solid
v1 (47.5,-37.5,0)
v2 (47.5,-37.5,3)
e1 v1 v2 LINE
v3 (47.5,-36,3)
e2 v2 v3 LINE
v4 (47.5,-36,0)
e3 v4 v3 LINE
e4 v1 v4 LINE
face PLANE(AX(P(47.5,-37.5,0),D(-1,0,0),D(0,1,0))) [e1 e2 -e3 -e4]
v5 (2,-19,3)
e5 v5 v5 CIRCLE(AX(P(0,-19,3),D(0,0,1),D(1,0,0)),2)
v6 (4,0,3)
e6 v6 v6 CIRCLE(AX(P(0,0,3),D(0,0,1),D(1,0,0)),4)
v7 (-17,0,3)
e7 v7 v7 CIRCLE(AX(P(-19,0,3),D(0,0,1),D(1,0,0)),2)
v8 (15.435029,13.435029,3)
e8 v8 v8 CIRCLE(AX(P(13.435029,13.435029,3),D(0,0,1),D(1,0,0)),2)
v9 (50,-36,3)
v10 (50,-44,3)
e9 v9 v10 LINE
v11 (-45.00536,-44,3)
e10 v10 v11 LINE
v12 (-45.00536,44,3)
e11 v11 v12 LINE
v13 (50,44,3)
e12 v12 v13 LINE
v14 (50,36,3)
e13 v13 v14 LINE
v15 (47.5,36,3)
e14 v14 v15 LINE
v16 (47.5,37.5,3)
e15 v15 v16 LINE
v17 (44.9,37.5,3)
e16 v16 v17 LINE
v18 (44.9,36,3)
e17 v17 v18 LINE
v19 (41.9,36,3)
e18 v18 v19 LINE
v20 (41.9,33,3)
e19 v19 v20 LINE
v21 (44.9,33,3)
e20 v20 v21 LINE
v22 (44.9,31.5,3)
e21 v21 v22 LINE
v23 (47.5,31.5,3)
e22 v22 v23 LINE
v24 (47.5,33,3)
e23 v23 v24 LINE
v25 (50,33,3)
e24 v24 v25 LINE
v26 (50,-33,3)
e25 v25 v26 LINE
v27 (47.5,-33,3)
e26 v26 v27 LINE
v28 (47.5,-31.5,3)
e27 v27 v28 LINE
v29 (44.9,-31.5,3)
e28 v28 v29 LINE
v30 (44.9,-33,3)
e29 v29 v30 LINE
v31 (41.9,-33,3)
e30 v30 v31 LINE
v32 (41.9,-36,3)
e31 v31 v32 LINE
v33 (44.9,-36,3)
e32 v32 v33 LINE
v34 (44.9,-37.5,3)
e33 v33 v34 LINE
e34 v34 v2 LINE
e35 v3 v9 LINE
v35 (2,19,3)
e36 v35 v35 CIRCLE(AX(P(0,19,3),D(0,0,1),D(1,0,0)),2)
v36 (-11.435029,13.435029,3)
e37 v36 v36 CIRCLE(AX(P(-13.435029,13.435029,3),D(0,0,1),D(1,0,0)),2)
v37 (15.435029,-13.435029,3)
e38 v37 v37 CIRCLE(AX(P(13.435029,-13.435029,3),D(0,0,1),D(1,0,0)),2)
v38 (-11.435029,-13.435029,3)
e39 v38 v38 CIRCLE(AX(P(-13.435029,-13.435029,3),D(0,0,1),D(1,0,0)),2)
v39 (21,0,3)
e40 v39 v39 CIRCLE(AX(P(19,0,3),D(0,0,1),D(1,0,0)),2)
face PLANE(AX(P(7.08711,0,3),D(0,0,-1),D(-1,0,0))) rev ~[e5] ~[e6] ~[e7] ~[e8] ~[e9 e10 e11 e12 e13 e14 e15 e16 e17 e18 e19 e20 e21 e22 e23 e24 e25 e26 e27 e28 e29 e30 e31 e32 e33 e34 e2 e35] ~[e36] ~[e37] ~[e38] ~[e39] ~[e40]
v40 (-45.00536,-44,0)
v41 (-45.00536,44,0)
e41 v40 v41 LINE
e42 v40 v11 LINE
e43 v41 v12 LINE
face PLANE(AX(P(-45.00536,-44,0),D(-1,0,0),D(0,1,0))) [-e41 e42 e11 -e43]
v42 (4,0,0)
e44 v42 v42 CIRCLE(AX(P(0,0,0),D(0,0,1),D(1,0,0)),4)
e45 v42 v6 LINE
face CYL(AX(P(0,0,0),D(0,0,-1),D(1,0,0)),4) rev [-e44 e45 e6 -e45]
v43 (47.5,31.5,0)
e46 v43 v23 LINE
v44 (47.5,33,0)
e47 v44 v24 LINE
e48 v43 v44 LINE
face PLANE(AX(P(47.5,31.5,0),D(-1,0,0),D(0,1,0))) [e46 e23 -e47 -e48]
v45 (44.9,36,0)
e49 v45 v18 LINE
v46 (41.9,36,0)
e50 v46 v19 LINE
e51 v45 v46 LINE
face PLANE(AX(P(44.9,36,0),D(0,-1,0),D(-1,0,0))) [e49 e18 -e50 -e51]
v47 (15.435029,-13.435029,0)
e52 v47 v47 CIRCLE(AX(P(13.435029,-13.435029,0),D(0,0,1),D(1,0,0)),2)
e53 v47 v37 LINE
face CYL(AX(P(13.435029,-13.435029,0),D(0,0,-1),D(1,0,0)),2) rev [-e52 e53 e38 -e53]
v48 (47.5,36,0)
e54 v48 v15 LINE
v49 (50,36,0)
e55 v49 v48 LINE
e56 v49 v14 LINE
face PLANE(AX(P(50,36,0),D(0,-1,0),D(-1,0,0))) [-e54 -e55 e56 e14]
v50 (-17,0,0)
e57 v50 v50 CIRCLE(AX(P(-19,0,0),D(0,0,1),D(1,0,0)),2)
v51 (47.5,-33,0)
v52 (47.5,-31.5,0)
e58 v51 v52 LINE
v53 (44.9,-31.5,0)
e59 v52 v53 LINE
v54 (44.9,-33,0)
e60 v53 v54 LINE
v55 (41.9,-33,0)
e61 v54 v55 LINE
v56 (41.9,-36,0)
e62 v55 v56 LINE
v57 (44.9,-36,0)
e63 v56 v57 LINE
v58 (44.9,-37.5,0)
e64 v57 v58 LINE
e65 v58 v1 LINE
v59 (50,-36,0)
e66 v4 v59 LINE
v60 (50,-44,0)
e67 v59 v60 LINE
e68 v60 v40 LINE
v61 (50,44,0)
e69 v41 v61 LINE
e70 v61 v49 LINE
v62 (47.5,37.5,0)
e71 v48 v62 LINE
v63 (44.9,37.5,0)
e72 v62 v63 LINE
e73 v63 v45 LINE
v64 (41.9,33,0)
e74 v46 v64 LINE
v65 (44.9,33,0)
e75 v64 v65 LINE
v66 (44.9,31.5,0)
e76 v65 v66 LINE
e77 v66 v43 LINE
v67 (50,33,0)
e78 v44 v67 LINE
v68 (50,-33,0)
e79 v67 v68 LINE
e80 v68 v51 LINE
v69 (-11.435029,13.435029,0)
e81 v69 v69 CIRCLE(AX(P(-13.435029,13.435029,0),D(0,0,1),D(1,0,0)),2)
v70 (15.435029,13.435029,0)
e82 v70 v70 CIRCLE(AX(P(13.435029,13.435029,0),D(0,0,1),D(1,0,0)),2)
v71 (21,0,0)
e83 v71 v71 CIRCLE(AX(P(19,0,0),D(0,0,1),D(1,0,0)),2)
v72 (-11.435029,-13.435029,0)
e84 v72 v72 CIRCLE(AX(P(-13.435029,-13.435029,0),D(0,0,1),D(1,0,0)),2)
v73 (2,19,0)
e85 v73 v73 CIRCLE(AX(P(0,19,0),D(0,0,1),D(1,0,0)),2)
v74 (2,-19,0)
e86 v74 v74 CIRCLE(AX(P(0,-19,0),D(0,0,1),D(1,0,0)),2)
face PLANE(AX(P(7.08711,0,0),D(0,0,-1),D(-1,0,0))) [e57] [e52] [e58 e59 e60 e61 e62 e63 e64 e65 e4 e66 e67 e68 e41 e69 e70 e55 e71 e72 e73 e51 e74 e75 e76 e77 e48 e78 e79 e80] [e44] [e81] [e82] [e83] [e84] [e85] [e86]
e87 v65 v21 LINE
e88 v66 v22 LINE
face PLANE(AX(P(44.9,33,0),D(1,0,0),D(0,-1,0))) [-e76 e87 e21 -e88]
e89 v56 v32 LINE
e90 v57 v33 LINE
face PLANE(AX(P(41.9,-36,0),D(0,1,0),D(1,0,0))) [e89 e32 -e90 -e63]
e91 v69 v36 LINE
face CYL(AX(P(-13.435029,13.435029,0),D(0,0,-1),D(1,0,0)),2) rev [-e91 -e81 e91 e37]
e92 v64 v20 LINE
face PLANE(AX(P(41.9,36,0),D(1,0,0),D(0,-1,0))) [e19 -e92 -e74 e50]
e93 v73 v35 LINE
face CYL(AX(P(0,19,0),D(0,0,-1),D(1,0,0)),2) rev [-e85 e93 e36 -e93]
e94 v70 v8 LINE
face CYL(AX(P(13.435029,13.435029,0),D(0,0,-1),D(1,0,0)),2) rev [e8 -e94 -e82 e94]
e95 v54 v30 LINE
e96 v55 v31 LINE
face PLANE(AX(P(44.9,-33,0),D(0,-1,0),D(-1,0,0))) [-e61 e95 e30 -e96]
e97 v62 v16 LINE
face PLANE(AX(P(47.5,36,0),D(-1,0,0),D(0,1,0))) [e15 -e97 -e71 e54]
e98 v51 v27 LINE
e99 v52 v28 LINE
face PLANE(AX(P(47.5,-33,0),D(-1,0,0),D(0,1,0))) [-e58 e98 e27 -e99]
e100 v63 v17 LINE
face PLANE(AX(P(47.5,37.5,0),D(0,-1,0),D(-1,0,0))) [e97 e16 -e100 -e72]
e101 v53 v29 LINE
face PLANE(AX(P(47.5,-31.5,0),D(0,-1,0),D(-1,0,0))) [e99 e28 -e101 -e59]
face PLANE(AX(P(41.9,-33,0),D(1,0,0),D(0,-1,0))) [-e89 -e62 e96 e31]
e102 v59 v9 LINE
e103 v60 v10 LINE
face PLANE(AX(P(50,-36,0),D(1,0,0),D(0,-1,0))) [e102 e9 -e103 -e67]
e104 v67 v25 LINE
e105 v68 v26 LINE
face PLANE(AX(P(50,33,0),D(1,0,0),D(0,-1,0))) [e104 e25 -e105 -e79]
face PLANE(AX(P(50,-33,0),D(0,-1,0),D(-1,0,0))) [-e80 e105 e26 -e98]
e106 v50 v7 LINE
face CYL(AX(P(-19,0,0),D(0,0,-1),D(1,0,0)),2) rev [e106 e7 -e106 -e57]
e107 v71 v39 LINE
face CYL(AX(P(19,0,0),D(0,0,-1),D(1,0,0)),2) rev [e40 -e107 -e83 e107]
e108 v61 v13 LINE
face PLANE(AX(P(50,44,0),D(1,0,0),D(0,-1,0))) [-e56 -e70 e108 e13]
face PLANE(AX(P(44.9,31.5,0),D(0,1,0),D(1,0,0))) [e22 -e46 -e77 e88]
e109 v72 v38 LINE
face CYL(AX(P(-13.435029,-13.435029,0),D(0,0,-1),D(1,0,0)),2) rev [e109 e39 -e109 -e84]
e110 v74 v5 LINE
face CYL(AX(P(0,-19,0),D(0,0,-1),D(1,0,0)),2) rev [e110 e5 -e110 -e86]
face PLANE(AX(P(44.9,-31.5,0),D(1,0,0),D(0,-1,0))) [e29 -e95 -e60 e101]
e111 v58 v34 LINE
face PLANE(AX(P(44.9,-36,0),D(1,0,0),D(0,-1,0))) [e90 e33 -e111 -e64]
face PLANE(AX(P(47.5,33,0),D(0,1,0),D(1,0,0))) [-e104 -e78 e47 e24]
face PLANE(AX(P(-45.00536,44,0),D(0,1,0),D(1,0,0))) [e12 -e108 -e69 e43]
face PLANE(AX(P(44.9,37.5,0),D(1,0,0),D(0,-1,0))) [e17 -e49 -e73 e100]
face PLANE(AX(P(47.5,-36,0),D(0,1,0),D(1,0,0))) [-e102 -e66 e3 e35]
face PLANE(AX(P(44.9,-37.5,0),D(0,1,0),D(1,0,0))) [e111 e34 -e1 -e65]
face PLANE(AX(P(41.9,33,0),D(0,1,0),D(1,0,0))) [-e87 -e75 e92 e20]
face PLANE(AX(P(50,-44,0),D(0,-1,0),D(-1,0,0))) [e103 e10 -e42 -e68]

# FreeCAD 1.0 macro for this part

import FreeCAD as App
import Part
import Sketcher
from FreeCAD import Vector

doc = App.newDocument("Part")
body = doc.addObject("PartDesign::Body", "Body")

sketch1 = body.newObject("Sketcher::SketchObject", "Sketch")
sketch1.AttachmentSupport = (doc.getObject("XY_Plane"), [""])
sketch1.MapMode = "FlatFace"
sketch1.addGeometry(Part.LineSegment(Vector(50, 36, 0), Vector(50, 44, 0)), False)
sketch1.addGeometry(Part.LineSegment(Vector(50, 44, 0), Vector(-45, 44, 0)), False)
sketch1.addGeometry(Part.LineSegment(Vector(-45, 44, 0), Vector(-45, -44, 0)), False)
sketch1.addGeometry(Part.LineSegment(Vector(-45, -44, 0), Vector(50, -44, 0)), False)
sketch1.addGeometry(Part.LineSegment(Vector(50, -44, 0), Vector(50, -36, 0)), False)
sketch1.addGeometry(Part.LineSegment(Vector(50, -36, 0), Vector(47.5, -36, 0)), False)
sketch1.addGeometry(Part.LineSegment(Vector(47.5, -36, 0), Vector(47.5, -37.5, 0)), False)
sketch1.addGeometry(Part.LineSegment(Vector(47.5, -37.5, 0), Vector(44.9, -37.5, 0)), False)
sketch1.addGeometry(Part.LineSegment(Vector(44.9, -37.5, 0), Vector(44.9, -36, 0)), False)
sketch1.addGeometry(Part.LineSegment(Vector(44.9, -36, 0), Vector(41.9, -36, 0)), False)
sketch1.addGeometry(Part.LineSegment(Vector(41.9, -36, 0), Vector(41.9, -33, 0)), False)
sketch1.addGeometry(Part.LineSegment(Vector(41.9, -33, 0), Vector(44.9, -33, 0)), False)
sketch1.addGeometry(Part.LineSegment(Vector(44.9, -33, 0), Vector(44.9, -31.5, 0)), False)
sketch1.addGeometry(Part.LineSegment(Vector(44.9, -31.5, 0), Vector(47.5, -31.5, 0)), False)
sketch1.addGeometry(Part.LineSegment(Vector(47.5, -31.5, 0), Vector(47.5, -33, 0)), False)
sketch1.addGeometry(Part.LineSegment(Vector(47.5, -33, 0), Vector(50, -33, 0)), False)
sketch1.addGeometry(Part.LineSegment(Vector(50, -33, 0), Vector(50, 33, 0)), False)
sketch1.addGeometry(Part.LineSegment(Vector(50, 33, 0), Vector(47.5, 33, 0)), False)
sketch1.addGeometry(Part.LineSegment(Vector(47.5, 33, 0), Vector(47.5, 31.5, 0)), False)
sketch1.addGeometry(Part.LineSegment(Vector(47.5, 31.5, 0), Vector(44.9, 31.5, 0)), False)
sketch1.addGeometry(Part.LineSegment(Vector(44.9, 31.5, 0), Vector(44.9, 33, 0)), False)
sketch1.addGeometry(Part.LineSegment(Vector(44.9, 33, 0), Vector(41.9, 33, 0)), False)
sketch1.addGeometry(Part.LineSegment(Vector(41.9, 33, 0), Vector(41.9, 36, 0)), False)
sketch1.addGeometry(Part.LineSegment(Vector(41.9, 36, 0), Vector(44.9, 36, 0)), False)
sketch1.addGeometry(Part.LineSegment(Vector(44.9, 36, 0), Vector(44.9, 37.5, 0)), False)
sketch1.addGeometry(Part.LineSegment(Vector(44.9, 37.5, 0), Vector(47.5, 37.5, 0)), False)
sketch1.addGeometry(Part.LineSegment(Vector(47.5, 37.5, 0), Vector(47.5, 36, 0)), False)
sketch1.addGeometry(Part.LineSegment(Vector(47.5, 36, 0), Vector(50, 36, 0)), False)
sketch1.addGeometry(Part.Circle(Vector(13.4, -13.4, 0), Vector(0, 0, 1), 2), False)
sketch1.addGeometry(Part.Circle(Vector(0, -19, 0), Vector(0, 0, 1), 2), False)
sketch1.addGeometry(Part.Circle(Vector(-13.4, -13.4, 0), Vector(0, 0, 1), 2), False)
sketch1.addGeometry(Part.Circle(Vector(19, 0, 0), Vector(0, 0, 1), 2), False)
sketch1.addGeometry(Part.Circle(Vector(13.4, 13.4, 0), Vector(0, 0, 1), 2), False)
sketch1.addGeometry(Part.Circle(Vector(0, 0, 0), Vector(0, 0, 1), 4), False)
sketch1.addGeometry(Part.Circle(Vector(-19, 0, 0), Vector(0, 0, 1), 2), False)
sketch1.addGeometry(Part.Circle(Vector(0, 19, 0), Vector(0, 0, 1), 2), False)
sketch1.addGeometry(Part.Circle(Vector(-13.4, 13.4, 0), Vector(0, 0, 1), 2), False)
sketch1.addConstraint(Sketcher.Constraint("Coincident", 0, 2, 1, 1))
sketch1.addConstraint(Sketcher.Constraint("Coincident", 1, 2, 2, 1))
sketch1.addConstraint(Sketcher.Constraint("Coincident", 2, 2, 3, 1))
sketch1.addConstraint(Sketcher.Constraint("Coincident", 3, 2, 4, 1))
sketch1.addConstraint(Sketcher.Constraint("Coincident", 4, 2, 5, 1))
sketch1.addConstraint(Sketcher.Constraint("Coincident", 5, 2, 6, 1))
sketch1.addConstraint(Sketcher.Constraint("Coincident", 6, 2, 7, 1))
sketch1.addConstraint(Sketcher.Constraint("Coincident", 7, 2, 8, 1))
sketch1.addConstraint(Sketcher.Constraint("Coincident", 8, 2, 9, 1))
sketch1.addConstraint(Sketcher.Constraint("Coincident", 9, 2, 10, 1))
sketch1.addConstraint(Sketcher.Constraint("Coincident", 10, 2, 11, 1))
sketch1.addConstraint(Sketcher.Constraint("Coincident", 11, 2, 12, 1))
sketch1.addConstraint(Sketcher.Constraint("Coincident", 12, 2, 13, 1))
sketch1.addConstraint(Sketcher.Constraint("Coincident", 13, 2, 14, 1))
sketch1.addConstraint(Sketcher.Constraint("Coincident", 14, 2, 15, 1))
sketch1.addConstraint(Sketcher.Constraint("Coincident", 15, 2, 16, 1))
sketch1.addConstraint(Sketcher.Constraint("Coincident", 16, 2, 17, 1))
sketch1.addConstraint(Sketcher.Constraint("Coincident", 17, 2, 18, 1))
sketch1.addConstraint(Sketcher.Constraint("Coincident", 18, 2, 19, 1))
sketch1.addConstraint(Sketcher.Constraint("Coincident", 19, 2, 20, 1))
sketch1.addConstraint(Sketcher.Constraint("Coincident", 20, 2, 21, 1))
sketch1.addConstraint(Sketcher.Constraint("Coincident", 21, 2, 22, 1))
sketch1.addConstraint(Sketcher.Constraint("Coincident", 22, 2, 23, 1))
sketch1.addConstraint(Sketcher.Constraint("Coincident", 23, 2, 24, 1))
sketch1.addConstraint(Sketcher.Constraint("Coincident", 24, 2, 25, 1))
sketch1.addConstraint(Sketcher.Constraint("Coincident", 25, 2, 26, 1))
sketch1.addConstraint(Sketcher.Constraint("Coincident", 26, 2, 27, 1))
sketch1.addConstraint(Sketcher.Constraint("Coincident", 27, 2, 0, 1))
sketch1.addConstraint(Sketcher.Constraint("Vertical", 0))
sketch1.addConstraint(Sketcher.Constraint("Horizontal", 1))
sketch1.addConstraint(Sketcher.Constraint("Vertical", 2))
sketch1.addConstraint(Sketcher.Constraint("Horizontal", 3))
sketch1.addConstraint(Sketcher.Constraint("Vertical", 4))
sketch1.addConstraint(Sketcher.Constraint("Horizontal", 5))
sketch1.addConstraint(Sketcher.Constraint("Vertical", 6))
sketch1.addConstraint(Sketcher.Constraint("Horizontal", 7))
sketch1.addConstraint(Sketcher.Constraint("Vertical", 8))
sketch1.addConstraint(Sketcher.Constraint("Horizontal", 9))
sketch1.addConstraint(Sketcher.Constraint("Vertical", 10))
sketch1.addConstraint(Sketcher.Constraint("Horizontal", 11))
sketch1.addConstraint(Sketcher.Constraint("Vertical", 12))
sketch1.addConstraint(Sketcher.Constraint("Horizontal", 13))
sketch1.addConstraint(Sketcher.Constraint("Vertical", 14))
sketch1.addConstraint(Sketcher.Constraint("Horizontal", 15))
sketch1.addConstraint(Sketcher.Constraint("Vertical", 16))
sketch1.addConstraint(Sketcher.Constraint("Horizontal", 17))
sketch1.addConstraint(Sketcher.Constraint("Vertical", 18))
sketch1.addConstraint(Sketcher.Constraint("Horizontal", 19))
sketch1.addConstraint(Sketcher.Constraint("Vertical", 20))
sketch1.addConstraint(Sketcher.Constraint("Horizontal", 21))
sketch1.addConstraint(Sketcher.Constraint("Vertical", 22))
sketch1.addConstraint(Sketcher.Constraint("Horizontal", 23))
sketch1.addConstraint(Sketcher.Constraint("Vertical", 24))
sketch1.addConstraint(Sketcher.Constraint("Horizontal", 25))
sketch1.addConstraint(Sketcher.Constraint("Vertical", 26))
sketch1.addConstraint(Sketcher.Constraint("Horizontal", 27))
sketch1.addConstraint(Sketcher.Constraint("Coincident", 33, 3, -1, 1))
sketch1.addConstraint(Sketcher.Constraint("Equal", 28, 29))
sketch1.addConstraint(Sketcher.Constraint("Equal", 29, 30))
sketch1.addConstraint(Sketcher.Constraint("Equal", 30, 31))
sketch1.addConstraint(Sketcher.Constraint("Equal", 31, 32))
sketch1.addConstraint(Sketcher.Constraint("Equal", 32, 34))
sketch1.addConstraint(Sketcher.Constraint("Equal", 34, 35))
sketch1.addConstraint(Sketcher.Constraint("Equal", 35, 36))
sketch1.addConstraint(Sketcher.Constraint("Symmetric", 30, 3, 32, 3, -1, 1))
sketch1.addConstraint(Sketcher.Constraint("Symmetric", 31, 3, 34, 3, -1, 1))
sketch1.addConstraint(Sketcher.Constraint("Symmetric", 29, 3, 35, 3, -1, 1))
sketch1.addConstraint(Sketcher.Constraint("Symmetric", 28, 3, 36, 3, -1, 1))
sketch1.addConstraint(Sketcher.Constraint("Symmetric", 28, 3, 30, 3, -2))
sketch1.addConstraint(Sketcher.Constraint("Symmetric", 0, 2, 3, 2, -1))
sketch1.addConstraint(Sketcher.Constraint("Symmetric", 14, 2, 17, 2, -1))
sketch1.addConstraint(Sketcher.Constraint("Symmetric", 12, 2, 19, 2, -1))
sketch1.addConstraint(Sketcher.Constraint("Symmetric", 10, 2, 21, 2, -1))
sketch1.addConstraint(Sketcher.Constraint("Symmetric", 8, 2, 23, 2, -1))
sketch1.addConstraint(Sketcher.Constraint("Symmetric", 6, 2, 25, 2, -1))
sketch1.addConstraint(Sketcher.Constraint("PointOnObject", 29, 3, -2))
sketch1.addConstraint(Sketcher.Constraint("PointOnObject", 31, 3, -1))
sketch1.addConstraint(Sketcher.Constraint("Horizontal", 5, 2, 8, 2))
sketch1.addConstraint(Sketcher.Constraint("Horizontal", 11, 2, 14, 2))
sketch1.addConstraint(Sketcher.Constraint("Horizontal", 23, 2, 26, 2))
sketch1.addConstraint(Sketcher.Constraint("Vertical", 8, 2, 11, 2))
sketch1.addConstraint(Sketcher.Constraint("Vertical", 6, 2, 13, 2))
sketch1.addConstraint(Sketcher.Constraint("Vertical", 4, 2, 15, 2))
sketch1.addConstraint(Sketcher.Constraint("Equal", 23, 10))
sketch1.addConstraint(Sketcher.Constraint("Equal", 8, 12))
sketch1.addConstraint(Sketcher.Constraint("Diameter", 28, 4.0))
sketch1.addConstraint(Sketcher.Constraint("Diameter", 33, 8.0))
sketch1.addConstraint(Sketcher.Constraint("DistanceX", 9, 2, 9, 1, 3.0))
sketch1.addConstraint(Sketcher.Constraint("DistanceY", 0, 1, 0, 2, 8.0))
sketch1.addConstraint(Sketcher.Constraint("DistanceY", 2, 2, 2, 1, 88.0))
sketch1.addConstraint(Sketcher.Constraint("DistanceX", 5, 2, 5, 1, 2.5))
sketch1.addConstraint(Sketcher.Constraint("DistanceX", 7, 2, 7, 1, 2.6))
sketch1.addConstraint(Sketcher.Constraint("DistanceY", 6, 2, 6, 1, 1.5))
sketch1.addConstraint(Sketcher.Constraint("DistanceY", 29, 3, -1, 1, 19.0))
sketch1.addConstraint(Sketcher.Constraint("DistanceX", -1, 1, 31, 3, 19.0))
sketch1.addConstraint(Sketcher.Constraint("DistanceX", -1, 1, 0, 2, 50.0))
sketch1.addConstraint(Sketcher.Constraint("DistanceX", 1, 2, 1, 1, 95.00536))
sketch1.addConstraint(Sketcher.Constraint("DistanceX", -1, 1, 28, 3, 13.435029))
sketch1.addConstraint(Sketcher.Constraint("DistanceY", 28, 3, -1, 1, 13.435029))
pad1 = body.newObject("PartDesign::Pad", "Pad")
pad1.Profile = sketch1
pad1.Length = 3

doc.recompute()
